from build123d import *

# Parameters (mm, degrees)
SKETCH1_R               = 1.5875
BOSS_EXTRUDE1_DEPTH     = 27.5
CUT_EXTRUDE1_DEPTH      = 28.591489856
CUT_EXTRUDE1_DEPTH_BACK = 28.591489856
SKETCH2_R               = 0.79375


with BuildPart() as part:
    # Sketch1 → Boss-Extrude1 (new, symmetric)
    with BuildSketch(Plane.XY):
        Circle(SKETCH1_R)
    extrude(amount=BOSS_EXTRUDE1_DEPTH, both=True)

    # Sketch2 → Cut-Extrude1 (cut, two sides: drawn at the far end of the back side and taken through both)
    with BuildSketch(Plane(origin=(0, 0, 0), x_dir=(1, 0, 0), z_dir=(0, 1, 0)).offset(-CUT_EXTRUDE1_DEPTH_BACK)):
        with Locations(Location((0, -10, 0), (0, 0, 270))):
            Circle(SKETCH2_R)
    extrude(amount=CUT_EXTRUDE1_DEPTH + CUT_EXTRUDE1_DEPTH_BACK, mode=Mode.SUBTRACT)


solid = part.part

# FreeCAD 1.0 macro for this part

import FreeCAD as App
import Part
import Sketcher

V = App.Vector
Q = App.Units.Quantity

doc = App.newDocument("Part")
body = doc.addObject("PartDesign::Body", "Body")

sketch1 = body.newObject("Sketcher::SketchObject", "Sketch")
sketch1.AttachmentSupport = (doc.getObject("XY_Plane"), [""])
sketch1.MapMode = "FlatFace"
sketch1.addGeometry(Part.Circle(V(0, 0, 0), V(0, 0, 1), 1.6), False)
sketch1.addConstraint(Sketcher.Constraint("Coincident", 0, 3, -1, 1))
sketch1.addConstraint(Sketcher.Constraint("Diameter", 0, Q("0.125 in")))
pad1 = body.newObject("PartDesign::Pad", "Pad")
pad1.Profile = sketch1
pad1.Length = 55
pad1.Midplane = True

sketch2 = body.newObject("Sketcher::SketchObject", "Sketch001")
sketch2.AttachmentSupport = (doc.getObject("XZ_Plane"), [""])
sketch2.MapMode = "FlatFace"
sketch2.addGeometry(Part.Circle(V(0, 10, 0), V(0, 0, 1), 0.8), False)
sketch2.addConstraint(Sketcher.Constraint("PointOnObject", 0, 3, -2))
sketch2.addConstraint(Sketcher.Constraint("Diameter", 0, Q("0.0625 in")))
sketch2.addConstraint(Sketcher.Constraint("DistanceY", -1, 1, 0, 3, Q("10 mm")))
pocket1 = body.newObject("PartDesign::Pocket", "Pocket")
pocket1.Profile = sketch2
pocket1.Type = "ThroughAll"
pocket1.Midplane = True

doc.recompute()
